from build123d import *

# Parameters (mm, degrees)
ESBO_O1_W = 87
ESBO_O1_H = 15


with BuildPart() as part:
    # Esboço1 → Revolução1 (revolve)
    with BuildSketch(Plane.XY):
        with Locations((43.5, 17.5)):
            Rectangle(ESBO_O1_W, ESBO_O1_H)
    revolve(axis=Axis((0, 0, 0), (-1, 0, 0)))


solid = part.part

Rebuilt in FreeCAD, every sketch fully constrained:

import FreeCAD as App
import Part
import Sketcher
Q = App.Units.Quantity

doc = App.newDocument("Part")
body = doc.addObject("PartDesign::Body", "Body")

sketch1 = body.newObject("Sketcher::SketchObject", "Sketch")
sketch1.AttachmentSupport = (doc.getObject("XY_Plane"), [""])
sketch1.MapMode = "FlatFace"
sketch1.addGeometry([
    Part.LineSegment(App.Vector(0, 25, 0), App.Vector(0, 10, 0)),
    Part.LineSegment(App.Vector(0, 10, 0), App.Vector(87, 10, 0)),
    Part.LineSegment(App.Vector(87, 10, 0), App.Vector(87, 25, 0)),
    Part.LineSegment(App.Vector(87, 25, 0), App.Vector(0, 25, 0)),
], False)
sketch1.addConstraint([
    Sketcher.Constraint("Coincident", 0, 2, 1, 1),
    Sketcher.Constraint("Coincident", 1, 2, 2, 1),
    Sketcher.Constraint("Coincident", 2, 2, 3, 1),
    Sketcher.Constraint("Coincident", 3, 2, 0, 1),
    Sketcher.Constraint("Vertical", 0),
    Sketcher.Constraint("Horizontal", 1),
    Sketcher.Constraint("Vertical", 2),
    Sketcher.Constraint("Horizontal", 3),
    Sketcher.Constraint("PointOnObject", 0, 2, -2),
    Sketcher.Constraint("DistanceX", 1, 1, 1, 2, Q("87 mm")),
    Sketcher.Constraint("DistanceY", 0, 2, 0, 1, Q("15 mm")),
    Sketcher.Constraint("DistanceY", -1, 1, 0, 2, Q("10 mm")),
])
revolution = body.newObject("PartDesign::Revolution", "Revolution")
revolution.Profile = sketch1
revolution.ReferenceAxis = (sketch1, ["H_Axis"])
revolution.Angle = 360

doc.recompute()
